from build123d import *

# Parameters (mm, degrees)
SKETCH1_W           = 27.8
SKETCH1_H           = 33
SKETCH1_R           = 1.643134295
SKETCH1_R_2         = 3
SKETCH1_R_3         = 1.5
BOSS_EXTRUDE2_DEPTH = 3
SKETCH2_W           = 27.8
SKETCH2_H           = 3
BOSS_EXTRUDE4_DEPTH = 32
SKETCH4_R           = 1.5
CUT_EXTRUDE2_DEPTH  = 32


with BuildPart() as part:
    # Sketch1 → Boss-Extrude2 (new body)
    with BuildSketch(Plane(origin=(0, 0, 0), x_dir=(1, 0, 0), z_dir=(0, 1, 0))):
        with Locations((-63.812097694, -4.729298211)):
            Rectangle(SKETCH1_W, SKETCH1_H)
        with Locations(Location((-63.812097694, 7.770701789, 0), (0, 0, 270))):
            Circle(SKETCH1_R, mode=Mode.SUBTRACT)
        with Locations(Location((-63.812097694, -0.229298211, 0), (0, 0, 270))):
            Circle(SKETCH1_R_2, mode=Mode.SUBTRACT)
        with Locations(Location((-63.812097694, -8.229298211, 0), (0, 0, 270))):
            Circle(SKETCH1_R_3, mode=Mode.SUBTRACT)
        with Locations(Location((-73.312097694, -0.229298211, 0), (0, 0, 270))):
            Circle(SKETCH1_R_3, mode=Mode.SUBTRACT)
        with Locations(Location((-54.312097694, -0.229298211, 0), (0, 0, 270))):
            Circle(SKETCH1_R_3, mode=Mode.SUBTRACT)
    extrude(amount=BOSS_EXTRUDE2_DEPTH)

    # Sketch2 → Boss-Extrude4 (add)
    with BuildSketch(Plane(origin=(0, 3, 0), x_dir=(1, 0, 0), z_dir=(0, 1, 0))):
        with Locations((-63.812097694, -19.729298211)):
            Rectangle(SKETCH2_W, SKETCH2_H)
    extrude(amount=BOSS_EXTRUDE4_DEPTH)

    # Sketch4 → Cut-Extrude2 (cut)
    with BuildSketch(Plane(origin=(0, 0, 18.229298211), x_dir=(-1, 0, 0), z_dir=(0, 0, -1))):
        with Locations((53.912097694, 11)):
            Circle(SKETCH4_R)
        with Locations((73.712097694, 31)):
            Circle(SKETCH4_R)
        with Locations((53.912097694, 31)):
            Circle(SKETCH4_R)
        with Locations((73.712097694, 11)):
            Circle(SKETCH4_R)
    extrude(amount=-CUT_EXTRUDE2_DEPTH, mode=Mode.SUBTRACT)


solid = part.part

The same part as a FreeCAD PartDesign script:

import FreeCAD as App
import Part
import Sketcher

V = App.Vector
Q = App.Units.Quantity

doc = App.newDocument("Part")
body = doc.addObject("PartDesign::Body", "Body")

sketch1 = body.newObject("Sketcher::SketchObject", "Sketch")
sketch1.AttachmentSupport = (doc.getObject("XZ_Plane"), [""])
sketch1.MapMode = "FlatFace"
sketch1.addGeometry(Part.LineSegment(V(-77.712098, -11.770702, 0), V(-77.712098, 21.229298, 0)), False)
sketch1.addGeometry(Part.LineSegment(V(-77.712098, 21.229298, 0), V(-49.912098, 21.229298, 0)), False)
sketch1.addGeometry(Part.LineSegment(V(-49.912098, 21.229298, 0), V(-49.912098, -11.770702, 0)), False)
sketch1.addGeometry(Part.LineSegment(V(-49.912098, -11.770702, 0), V(-77.712098, -11.770702, 0)), False)
sketch1.addGeometry(Part.Circle(V(-73.312098, 0.229298, 0), V(0, 0, 1), 1.5), False)
sketch1.addGeometry(Part.Circle(V(-63.812098, 8.229298, 0), V(0, 0, 1), 1.5), False)
sketch1.addGeometry(Part.Circle(V(-63.812098, 0.229298, 0), V(0, 0, 1), 3), False)
sketch1.addGeometry(Part.Circle(V(-54.312098, 0.229298, 0), V(0, 0, 1), 1.5), False)
sketch1.addGeometry(Part.Circle(V(-63.812098, -7.770702, 0), V(0, 0, 1), 1.643134), False)
sketch1.addConstraint(Sketcher.Constraint("Coincident", 0, 2, 1, 1))
sketch1.addConstraint(Sketcher.Constraint("Coincident", 1, 2, 2, 1))
sketch1.addConstraint(Sketcher.Constraint("Coincident", 2, 2, 3, 1))
sketch1.addConstraint(Sketcher.Constraint("Coincident", 3, 2, 0, 1))
sketch1.addConstraint(Sketcher.Constraint("Vertical", 0))
sketch1.addConstraint(Sketcher.Constraint("Horizontal", 1))
sketch1.addConstraint(Sketcher.Constraint("Vertical", 2))
sketch1.addConstraint(Sketcher.Constraint("Horizontal", 3))
sketch1.addConstraint(Sketcher.Constraint("Equal", 4, 5))
sketch1.addConstraint(Sketcher.Constraint("Equal", 5, 7))
sketch1.addConstraint(Sketcher.Constraint("Horizontal", 4, 3, 6, 3))
sketch1.addConstraint(Sketcher.Constraint("Horizontal", 6, 3, 7, 3))
sketch1.addConstraint(Sketcher.Constraint("Vertical", 5, 3, 6, 3))
sketch1.addConstraint(Sketcher.Constraint("Vertical", 6, 3, 8, 3))
sketch1.addConstraint(Sketcher.Constraint("Diameter", 4, Q("3 mm")))
sketch1.addConstraint(Sketcher.Constraint("Diameter", 6, Q("6 mm")))
sketch1.addConstraint(Sketcher.Constraint("DistanceY", 0, 1, 0, 2, Q("33 mm")))
sketch1.addConstraint(Sketcher.Constraint("DistanceX", 1, 1, 1, 2, Q("27.8 mm")))
sketch1.addConstraint(Sketcher.Constraint("DistanceY", 4, 3, 5, 3, Q("8 mm")))
sketch1.addConstraint(Sketcher.Constraint("DistanceX", 4, 3, 7, 3, Q("19 mm")))
sketch1.addConstraint(Sketcher.Constraint("DistanceY", 8, 3, 6, 3, Q("8 mm")))
sketch1.addConstraint(Sketcher.Constraint("DistanceY", 5, 3, 0, 2, Q("13 mm")))
sketch1.addConstraint(Sketcher.Constraint("DistanceX", 4, 3, 5, 3, Q("9.5 mm")))
sketch1.addConstraint(Sketcher.Constraint("DistanceX", 0, 2, 5, 3, Q("13.9 mm")))
sketch1.addConstraint(Sketcher.Constraint("Diameter", 8, Q("3.286269 mm")))
sketch1.addConstraint(Sketcher.Constraint("DistanceY", -1, 1, 4, 3, Q("0.229298 mm")))
sketch1.addConstraint(Sketcher.Constraint("DistanceX", 4, 3, -1, 1, Q("73.312098 mm")))
pad1 = body.newObject("PartDesign::Pad", "Pad")
pad1.Profile = sketch1
pad1.Length = 3
pad1.Reversed = True

sketch2 = body.newObject("Sketcher::SketchObject", "Sketch001")
sketch2.AttachmentSupport = (doc.getObject("XZ_Plane"), [""])
sketch2.MapMode = "FlatFace"
sketch2.AttachmentOffset = App.Placement(V(0, 0, -3), App.Rotation())
sketch2.addGeometry(Part.LineSegment(V(-77.712098, 18.229298, 0), V(-77.712098, 21.229298, 0)), False)
sketch2.addGeometry(Part.LineSegment(V(-77.712098, 21.229298, 0), V(-49.912098, 21.229298, 0)), False)
sketch2.addGeometry(Part.LineSegment(V(-49.912098, 21.229298, 0), V(-49.912098, 18.229298, 0)), False)
sketch2.addGeometry(Part.LineSegment(V(-49.912098, 18.229298, 0), V(-77.712098, 18.229298, 0)), False)
sketch2.addConstraint(Sketcher.Constraint("Coincident", 0, 2, 1, 1))
sketch2.addConstraint(Sketcher.Constraint("Coincident", 1, 2, 2, 1))
sketch2.addConstraint(Sketcher.Constraint("Coincident", 2, 2, 3, 1))
sketch2.addConstraint(Sketcher.Constraint("Coincident", 3, 2, 0, 1))
sketch2.addConstraint(Sketcher.Constraint("Vertical", 0))
sketch2.addConstraint(Sketcher.Constraint("Horizontal", 1))
sketch2.addConstraint(Sketcher.Constraint("Vertical", 2))
sketch2.addConstraint(Sketcher.Constraint("Horizontal", 3))
sketch2.addConstraint(Sketcher.Constraint("DistanceY", 0, 1, 0, 2, Q("3 mm")))
sketch2.addConstraint(Sketcher.Constraint("DistanceX", 1, 1, 1, 2, Q("27.8 mm")))
sketch2.addConstraint(Sketcher.Constraint("DistanceY", -1, 1, 0, 2, Q("21.229298 mm")))
sketch2.addConstraint(Sketcher.Constraint("DistanceX", 0, 2, -1, 1, Q("77.712098 mm")))
pad2 = body.newObject("PartDesign::Pad", "Pad001")
pad2.Profile = sketch2
pad2.Length = 32
pad2.Reversed = True

sketch3 = body.newObject("Sketcher::SketchObject", "Sketch002")
sketch3.AttachmentSupport = (doc.getObject("XY_Plane"), [""])
sketch3.MapMode = "FlatFace"
sketch3.AttachmentOffset = App.Placement(V(0, 0, 18.229298), App.Rotation())
sketch3.addGeometry(Part.Circle(V(-53.912098, 11, 0), V(0, 0, 1), 1.5), False)
sketch3.addGeometry(Part.Circle(V(-73.712098, 31, 0), V(0, 0, 1), 1.5), False)
sketch3.addGeometry(Part.Circle(V(-53.912098, 31, 0), V(0, 0, 1), 1.5), False)
sketch3.addGeometry(Part.Circle(V(-73.712098, 11, 0), V(0, 0, 1), 1.5), False)
sketch3.addConstraint(Sketcher.Constraint("Equal", 0, 1))
sketch3.addConstraint(Sketcher.Constraint("Equal", 1, 2))
sketch3.addConstraint(Sketcher.Constraint("Equal", 2, 3))
sketch3.addConstraint(Sketcher.Constraint("Horizontal", 1, 3, 2, 3))
sketch3.addConstraint(Sketcher.Constraint("Horizontal", 0, 3, 3, 3))
sketch3.addConstraint(Sketcher.Constraint("Vertical", 0, 3, 2, 3))
sketch3.addConstraint(Sketcher.Constraint("Vertical", 1, 3, 3, 3))
sketch3.addConstraint(Sketcher.Constraint("Diameter", 0, Q("3 mm")))
sketch3.addConstraint(Sketcher.Constraint("DistanceY", -1, 1, 0, 3, Q("11 mm")))
sketch3.addConstraint(Sketcher.Constraint("DistanceY", -1, 1, 1, 3, Q("31 mm")))
sketch3.addConstraint(Sketcher.Constraint("DistanceX", 1, 3, 0, 3, Q("19.8 mm")))
sketch3.addConstraint(Sketcher.Constraint("DistanceX", 0, 3, -1, 1, Q("53.912098 mm")))
pocket1 = body.newObject("PartDesign::Pocket", "Pocket")
pocket1.Profile = sketch3
pocket1.Length = 32
pocket1.Reversed = True

doc.recompute()
